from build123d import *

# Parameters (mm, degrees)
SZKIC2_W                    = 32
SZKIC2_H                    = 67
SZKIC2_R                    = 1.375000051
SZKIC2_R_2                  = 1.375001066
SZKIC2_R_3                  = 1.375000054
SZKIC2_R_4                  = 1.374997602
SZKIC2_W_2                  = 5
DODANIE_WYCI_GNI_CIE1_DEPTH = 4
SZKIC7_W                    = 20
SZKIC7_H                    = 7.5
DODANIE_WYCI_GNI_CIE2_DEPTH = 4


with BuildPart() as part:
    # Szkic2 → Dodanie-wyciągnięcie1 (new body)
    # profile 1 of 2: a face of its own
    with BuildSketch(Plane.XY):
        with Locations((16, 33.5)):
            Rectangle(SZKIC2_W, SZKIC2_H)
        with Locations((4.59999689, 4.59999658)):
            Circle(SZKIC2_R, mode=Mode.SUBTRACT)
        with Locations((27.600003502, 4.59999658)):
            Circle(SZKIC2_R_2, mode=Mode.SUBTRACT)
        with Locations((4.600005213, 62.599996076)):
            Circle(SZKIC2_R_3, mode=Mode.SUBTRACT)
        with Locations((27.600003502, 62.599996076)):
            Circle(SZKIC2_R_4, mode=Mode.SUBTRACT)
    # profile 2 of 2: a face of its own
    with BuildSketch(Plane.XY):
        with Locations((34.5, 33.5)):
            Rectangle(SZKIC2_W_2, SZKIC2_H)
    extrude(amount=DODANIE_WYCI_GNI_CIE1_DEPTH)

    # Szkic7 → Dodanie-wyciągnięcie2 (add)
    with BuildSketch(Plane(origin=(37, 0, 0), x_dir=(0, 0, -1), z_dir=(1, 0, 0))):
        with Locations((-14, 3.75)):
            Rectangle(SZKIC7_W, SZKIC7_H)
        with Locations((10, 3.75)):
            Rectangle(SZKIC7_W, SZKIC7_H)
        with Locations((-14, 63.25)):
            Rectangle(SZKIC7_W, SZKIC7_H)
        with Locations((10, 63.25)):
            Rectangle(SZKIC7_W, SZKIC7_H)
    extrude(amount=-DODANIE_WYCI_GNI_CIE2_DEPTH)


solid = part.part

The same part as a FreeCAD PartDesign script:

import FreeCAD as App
import Part
import Sketcher
from FreeCAD import Vector

doc = App.newDocument("Part")
body = doc.addObject("PartDesign::Body", "Body")

# Sketch on XY plane
sketch1 = body.newObject("Sketcher::SketchObject", "Sketch")
sketch1.AttachmentSupport = (doc.getObject("XY_Plane"), [""])
sketch1.MapMode = "FlatFace"
sketch1.addGeometry([
    Part.LineSegment(Vector(0, 67, 0), Vector(0, 0, 0)),  # 0
    Part.LineSegment(Vector(0, 0, 0), Vector(37, 0, 0)),  # 1
    Part.LineSegment(Vector(37, 0, 0), Vector(37, 67, 0)),  # 2
    Part.LineSegment(Vector(37, 67, 0), Vector(0, 67, 0)),  # 3
    Part.Circle(Vector(4.599997, 4.599997, 0), Vector(0, 0, 1), 1.375),  # 4
    Part.Circle(Vector(27.600004, 4.599997, 0), Vector(0, 0, 1), 1.375001),  # 5
    Part.Circle(Vector(4.600005, 62.599996, 0), Vector(0, 0, 1), 1.375),  # 6
    Part.Circle(Vector(27.600004, 62.599996, 0), Vector(0, 0, 1), 1.374998),  # 7
], False)
sketch1.addConstraint([
    Sketcher.Constraint("Coincident", 0, 2, 1, 1),
    Sketcher.Constraint("Coincident", 1, 2, 2, 1),
    Sketcher.Constraint("Coincident", 2, 2, 3, 1),
    Sketcher.Constraint("Coincident", 3, 2, 0, 1),
    Sketcher.Constraint("Vertical", 0),
    Sketcher.Constraint("Horizontal", 1),
    Sketcher.Constraint("Vertical", 2),
    Sketcher.Constraint("Horizontal", 3),
    Sketcher.Constraint("Coincident", 0, 2, -1, 1),
    Sketcher.Constraint("Equal", 4, 5),
    Sketcher.Constraint("Equal", 5, 6),
    Sketcher.Constraint("Horizontal", 4, 3, 5, 3),
    Sketcher.Constraint("Horizontal", 6, 3, 7, 3),
    Sketcher.Constraint("Vertical", 5, 3, 7, 3),
    Sketcher.Constraint("Diameter", 4, 2.75),
    Sketcher.Constraint("DistanceX", 1, 1, 1, 2, 37.0),
    Sketcher.Constraint("DistanceY", 0, 2, 0, 1, 67.0),
    Sketcher.Constraint("DistanceY", 4, 3, 6, 3, 57.999999),
    Sketcher.Constraint("DistanceX", 6, 3, 5, 3, 22.999998),
    Sketcher.Constraint("Diameter", 7, 2.749995),
    Sketcher.Constraint("DistanceX", -1, 1, 4, 3, 4.599997),
    Sketcher.Constraint("DistanceY", -1, 1, 4, 3, 4.599997),
    Sketcher.Constraint("DistanceX", -1, 1, 5, 3, 27.600004),
])
pad1 = body.newObject("PartDesign::Pad", "Pad")
pad1.Profile = sketch1
pad1.Length = 4

# Sketch on YZ plane
sketch2 = body.newObject("Sketcher::SketchObject", "Sketch001")
sketch2.AttachmentSupport = (doc.getObject("YZ_Plane"), [""])
sketch2.MapMode = "FlatFace"
sketch2.AttachmentOffset = App.Placement(Vector(0, 0, 37), App.Rotation())
sketch2.addGeometry([
    Part.LineSegment(Vector(7.5, 24, 0), Vector(0, 24, 0)),  # 0
    Part.LineSegment(Vector(0, 24, 0), Vector(0, 4, 0)),  # 1
    Part.LineSegment(Vector(0, 4, 0), Vector(7.5, 4, 0)),  # 2
    Part.LineSegment(Vector(7.5, 4, 0), Vector(7.5, 24, 0)),  # 3
    Part.LineSegment(Vector(7.5, 0, 0), Vector(0, 0, 0)),  # 4
    Part.LineSegment(Vector(0, 0, 0), Vector(0, -20, 0)),  # 5
    Part.LineSegment(Vector(0, -20, 0), Vector(7.5, -20, 0)),  # 6
    Part.LineSegment(Vector(7.5, -20, 0), Vector(7.5, 0, 0)),  # 7
    Part.LineSegment(Vector(67, 24, 0), Vector(59.5, 24, 0)),  # 8
    Part.LineSegment(Vector(59.5, 24, 0), Vector(59.5, 4, 0)),  # 9
    Part.LineSegment(Vector(59.5, 4, 0), Vector(67, 4, 0)),  # 10
    Part.LineSegment(Vector(67, 4, 0), Vector(67, 24, 0)),  # 11
    Part.LineSegment(Vector(67, 0, 0), Vector(59.5, 0, 0)),  # 12
    Part.LineSegment(Vector(59.5, 0, 0), Vector(59.5, -20, 0)),  # 13
    Part.LineSegment(Vector(59.5, -20, 0), Vector(67, -20, 0)),  # 14
    Part.LineSegment(Vector(67, -20, 0), Vector(67, 0, 0)),  # 15
], False)
sketch2.addConstraint([
    Sketcher.Constraint("Coincident", 0, 2, 1, 1),
    Sketcher.Constraint("Coincident", 1, 2, 2, 1),
    Sketcher.Constraint("Coincident", 2, 2, 3, 1),
    Sketcher.Constraint("Coincident", 3, 2, 0, 1),
    Sketcher.Constraint("Coincident", 4, 2, 5, 1),
    Sketcher.Constraint("Coincident", 5, 2, 6, 1),
    Sketcher.Constraint("Coincident", 6, 2, 7, 1),
    Sketcher.Constraint("Coincident", 7, 2, 4, 1),
    Sketcher.Constraint("Coincident", 8, 2, 9, 1),
    Sketcher.Constraint("Coincident", 9, 2, 10, 1),
    Sketcher.Constraint("Coincident", 10, 2, 11, 1),
    Sketcher.Constraint("Coincident", 11, 2, 8, 1),
    Sketcher.Constraint("Coincident", 12, 2, 13, 1),
    Sketcher.Constraint("Coincident", 13, 2, 14, 1),
    Sketcher.Constraint("Coincident", 14, 2, 15, 1),
    Sketcher.Constraint("Coincident", 15, 2, 12, 1),
    Sketcher.Constraint("Horizontal", 0),
    Sketcher.Constraint("Vertical", 1),
    Sketcher.Constraint("Horizontal", 2),
    Sketcher.Constraint("Vertical", 3),
    Sketcher.Constraint("Horizontal", 4),
    Sketcher.Constraint("Vertical", 5),
    Sketcher.Constraint("Horizontal", 6),
    Sketcher.Constraint("Vertical", 7),
    Sketcher.Constraint("Horizontal", 8),
    Sketcher.Constraint("Vertical", 9),
    Sketcher.Constraint("Horizontal", 10),
    Sketcher.Constraint("Vertical", 11),
    Sketcher.Constraint("Horizontal", 12),
    Sketcher.Constraint("Vertical", 13),
    Sketcher.Constraint("Horizontal", 14),
    Sketcher.Constraint("Vertical", 15),
    Sketcher.Constraint("Coincident", 4, 2, -1, 1),
    Sketcher.Constraint("PointOnObject", 0, 2, -2),
    Sketcher.Constraint("PointOnObject", 12, 2, -1),
    Sketcher.Constraint("Horizontal", 3, 2, 8, 2),
    Sketcher.Constraint("Horizontal", 2, 2, 9, 2),
    Sketcher.Constraint("Horizontal", 6, 2, 13, 2),
    Sketcher.Constraint("Vertical", 3, 2, 6, 2),
    Sketcher.Constraint("Vertical", 9, 2, 12, 2),
    Sketcher.Constraint("Vertical", 11, 2, 14, 2),
    Sketcher.Constraint("Equal", 6, 8),
    Sketcher.Constraint("Equal", 3, 5),
    Sketcher.Constraint("DistanceY", 1, 2, 1, 1, 20.0),
    Sketcher.Constraint("DistanceX", 0, 2, 0, 1, 7.5),
    Sketcher.Constraint("DistanceY", -1, 1, 0, 2, 24.0),
    Sketcher.Constraint("DistanceX", -1, 1, 10, 2, 67.0),
])
pad2 = body.newObject("PartDesign::Pad", "Pad001")
pad2.Profile = sketch2
pad2.Length = 4
pad2.Reversed = True

doc.recompute()
